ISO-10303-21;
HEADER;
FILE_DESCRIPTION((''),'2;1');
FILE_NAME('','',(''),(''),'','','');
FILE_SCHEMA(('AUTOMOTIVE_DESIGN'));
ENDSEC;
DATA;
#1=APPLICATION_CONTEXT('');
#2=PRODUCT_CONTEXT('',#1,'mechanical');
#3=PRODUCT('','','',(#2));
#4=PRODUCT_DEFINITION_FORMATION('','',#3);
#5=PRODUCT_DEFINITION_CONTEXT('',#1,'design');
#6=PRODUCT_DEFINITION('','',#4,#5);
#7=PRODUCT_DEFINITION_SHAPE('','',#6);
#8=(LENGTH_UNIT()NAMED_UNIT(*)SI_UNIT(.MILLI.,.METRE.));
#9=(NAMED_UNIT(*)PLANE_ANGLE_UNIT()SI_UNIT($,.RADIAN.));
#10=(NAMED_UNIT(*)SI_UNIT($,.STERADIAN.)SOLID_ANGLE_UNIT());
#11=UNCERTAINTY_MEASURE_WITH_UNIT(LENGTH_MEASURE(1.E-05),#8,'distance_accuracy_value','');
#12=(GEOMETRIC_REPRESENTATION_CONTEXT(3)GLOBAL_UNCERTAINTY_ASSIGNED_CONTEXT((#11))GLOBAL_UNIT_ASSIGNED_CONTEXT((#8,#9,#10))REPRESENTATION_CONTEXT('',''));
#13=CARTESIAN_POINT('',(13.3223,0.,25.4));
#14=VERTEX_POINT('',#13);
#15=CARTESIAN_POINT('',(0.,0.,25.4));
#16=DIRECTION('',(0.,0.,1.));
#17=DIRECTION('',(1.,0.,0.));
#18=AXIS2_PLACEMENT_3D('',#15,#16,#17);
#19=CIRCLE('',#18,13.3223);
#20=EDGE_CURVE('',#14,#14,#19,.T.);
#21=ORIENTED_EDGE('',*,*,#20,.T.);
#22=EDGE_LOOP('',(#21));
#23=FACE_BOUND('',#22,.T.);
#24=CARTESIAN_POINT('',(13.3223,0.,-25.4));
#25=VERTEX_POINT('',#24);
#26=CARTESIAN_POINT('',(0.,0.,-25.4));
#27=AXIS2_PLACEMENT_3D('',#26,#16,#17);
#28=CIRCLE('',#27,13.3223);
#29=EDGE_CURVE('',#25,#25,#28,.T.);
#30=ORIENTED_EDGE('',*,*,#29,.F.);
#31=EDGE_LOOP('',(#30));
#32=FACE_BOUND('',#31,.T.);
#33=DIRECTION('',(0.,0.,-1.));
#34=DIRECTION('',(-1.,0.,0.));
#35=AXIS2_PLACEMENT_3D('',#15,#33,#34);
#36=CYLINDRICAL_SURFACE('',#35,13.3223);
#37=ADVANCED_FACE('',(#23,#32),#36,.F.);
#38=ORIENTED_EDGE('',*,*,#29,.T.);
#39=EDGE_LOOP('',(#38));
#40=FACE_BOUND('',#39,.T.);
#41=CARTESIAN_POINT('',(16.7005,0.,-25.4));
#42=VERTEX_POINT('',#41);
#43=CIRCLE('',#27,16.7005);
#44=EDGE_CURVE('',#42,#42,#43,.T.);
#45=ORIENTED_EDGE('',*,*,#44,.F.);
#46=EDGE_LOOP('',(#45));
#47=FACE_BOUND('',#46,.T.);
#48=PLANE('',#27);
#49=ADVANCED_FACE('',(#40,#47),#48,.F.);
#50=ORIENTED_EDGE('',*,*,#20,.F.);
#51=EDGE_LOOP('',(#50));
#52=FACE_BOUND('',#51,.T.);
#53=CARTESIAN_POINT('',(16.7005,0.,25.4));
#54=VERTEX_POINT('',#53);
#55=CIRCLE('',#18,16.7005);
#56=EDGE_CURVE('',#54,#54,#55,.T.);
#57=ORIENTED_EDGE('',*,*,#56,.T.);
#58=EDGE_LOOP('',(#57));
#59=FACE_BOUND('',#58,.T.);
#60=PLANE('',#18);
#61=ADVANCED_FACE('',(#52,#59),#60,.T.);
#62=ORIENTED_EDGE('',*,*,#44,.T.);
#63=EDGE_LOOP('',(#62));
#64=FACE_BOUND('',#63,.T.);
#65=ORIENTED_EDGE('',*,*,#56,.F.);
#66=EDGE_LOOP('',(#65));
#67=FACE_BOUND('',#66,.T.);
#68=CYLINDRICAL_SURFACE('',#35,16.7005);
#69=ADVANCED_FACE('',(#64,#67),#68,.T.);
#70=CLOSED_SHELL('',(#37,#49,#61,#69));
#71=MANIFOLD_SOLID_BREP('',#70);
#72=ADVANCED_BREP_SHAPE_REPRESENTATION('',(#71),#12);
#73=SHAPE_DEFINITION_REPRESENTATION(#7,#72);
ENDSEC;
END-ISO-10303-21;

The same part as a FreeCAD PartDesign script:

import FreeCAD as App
import Part
import Sketcher
Q = App.Units.Quantity

doc = App.newDocument("Part")
body = doc.addObject("PartDesign::Body", "Body")

# Sketch on XY plane
sketch1 = doc.addObject("Sketcher::SketchObject", "Sketch")
body.addObject(sketch1)
sketch1.AttachmentSupport = (doc.XY_Plane, [""])
sketch1.MapMode = "FlatFace"
sketch1.addGeometry([
    Part.Circle(App.Vector(0, 0, 0), App.Vector(0, 0, 1), 16.7005),
    Part.Circle(App.Vector(0, 0, 0), App.Vector(0, 0, 1), 13.3223),
], False)
sketch1.addConstraint([
    Sketcher.Constraint("Coincident", 0, 3, -1, 1),
    Sketcher.Constraint("Coincident", 1, 3, -1, 1),
    Sketcher.Constraint("Diameter", 0, Q("1.315 in")),
    Sketcher.Constraint("Diameter", 1, Q("1.049 in")),
])
pad1 = doc.addObject("PartDesign::Pad", "Pad")
body.addObject(pad1)
pad1.Profile = sketch1
pad1.Length = Q("2 in")
pad1.Midplane = True

doc.recompute()
